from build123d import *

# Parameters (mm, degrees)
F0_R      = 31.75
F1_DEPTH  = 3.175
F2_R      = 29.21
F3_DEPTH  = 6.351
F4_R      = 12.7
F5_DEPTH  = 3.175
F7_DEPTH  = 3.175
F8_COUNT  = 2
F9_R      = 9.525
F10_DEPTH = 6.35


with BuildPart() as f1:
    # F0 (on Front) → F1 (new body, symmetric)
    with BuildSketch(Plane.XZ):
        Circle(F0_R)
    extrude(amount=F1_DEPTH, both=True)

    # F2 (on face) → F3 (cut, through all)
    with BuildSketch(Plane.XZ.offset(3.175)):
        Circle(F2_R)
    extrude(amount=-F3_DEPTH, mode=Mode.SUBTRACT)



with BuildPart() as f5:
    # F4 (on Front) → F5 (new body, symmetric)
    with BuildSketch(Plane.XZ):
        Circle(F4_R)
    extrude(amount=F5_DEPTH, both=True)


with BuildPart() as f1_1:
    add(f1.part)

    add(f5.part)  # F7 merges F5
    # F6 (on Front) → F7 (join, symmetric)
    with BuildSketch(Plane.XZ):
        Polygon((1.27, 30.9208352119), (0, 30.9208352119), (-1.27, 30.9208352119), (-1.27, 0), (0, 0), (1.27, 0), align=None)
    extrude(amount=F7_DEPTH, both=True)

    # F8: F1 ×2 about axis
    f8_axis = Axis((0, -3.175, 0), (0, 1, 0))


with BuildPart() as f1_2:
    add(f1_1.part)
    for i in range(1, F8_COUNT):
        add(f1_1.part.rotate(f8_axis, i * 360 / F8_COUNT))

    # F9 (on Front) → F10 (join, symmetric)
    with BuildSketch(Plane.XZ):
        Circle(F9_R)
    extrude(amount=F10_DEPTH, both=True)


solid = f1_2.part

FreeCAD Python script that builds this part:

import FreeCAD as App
import Part
import Sketcher
from FreeCAD import Vector
Q = App.Units.Quantity

doc = App.newDocument("Part")
params = doc.addObject("Spreadsheet::Sheet", "Params")
for row, (alias, value) in enumerate([
    ("sketch1_diameter", "2.5 in"),
    ("pad1_length", "0.25 in"),
    ("sketch2_diameter", "2.3 in"),
    ("sketch3_diameter", "1 in"),
    ("pad2_length", "0.25 in"),
    ("sketch4_width", "0.1 in"),
    ("pad3_length", "0.25 in"),
    ("sketch5_diameter", "0.75 in"),
    ("pad4_length", "0.5 in"),
], start=1):
    params.set(f"A{row}", alias)
    params.set(f"B{row}", "=" + value)
    params.setAlias(f"B{row}", alias)

body = doc.addObject("PartDesign::Body", "Body")

# Sketch on XZ plane
sketch1 = body.newObject("Sketcher::SketchObject", "Sketch")
sketch1.AttachmentSupport = (doc.getObject("XZ_Plane"), [""])
sketch1.MapMode = "FlatFace"
sketch1.addGeometry(Part.Circle(Vector(0, 0, 0), Vector(0, 0, 1), 32), False)
sketch1.addConstraint([
    Sketcher.Constraint("Coincident", 0, 3, -1, 1),
    Sketcher.Constraint("Diameter", 0, Q("2.5 in")),
])
sketch1.setExpression("Constraints[1]", "Params.sketch1_diameter")
pad1 = body.newObject("PartDesign::Pad", "Pad")
pad1.Profile = sketch1
pad1.setExpression("Length", "Params.pad1_length")
pad1.Midplane = True

# Sketch on XZ plane
sketch2 = body.newObject("Sketcher::SketchObject", "Sketch001")
sketch2.AttachmentSupport = (doc.getObject("XZ_Plane"), [""])
sketch2.MapMode = "FlatFace"
sketch2.AttachmentOffset = App.Placement(Vector(0, 0, 0.125 * 25.4), App.Rotation())
sketch2.addGeometry(Part.Circle(Vector(0, 0, 0), Vector(0, 0, 1), 29), False)
sketch2.addConstraint([
    Sketcher.Constraint("Coincident", 0, 3, -1, 1),
    Sketcher.Constraint("Diameter", 0, Q("2.3 in")),
])
sketch2.setExpression("Constraints[1]", "Params.sketch2_diameter")
pocket1 = body.newObject("PartDesign::Pocket", "Pocket")
pocket1.Profile = sketch2
pocket1.Type = "ThroughAll"
body2 = doc.addObject("PartDesign::Body", "Body001")

# Sketch on XZ plane
sketch3 = body2.newObject("Sketcher::SketchObject", "Sketch002")
sketch3.AttachmentSupport = (doc.getObject("XZ_Plane001"), [""])
sketch3.MapMode = "FlatFace"
sketch3.addGeometry(Part.Circle(Vector(0, 0, 0), Vector(0, 0, 1), 13), False)
sketch3.addConstraint([
    Sketcher.Constraint("Coincident", 0, 3, -1, 1),
    Sketcher.Constraint("Diameter", 0, Q("1 in")),
])
sketch3.setExpression("Constraints[1]", "Params.sketch3_diameter")
pad2 = body2.newObject("PartDesign::Pad", "Pad001")
pad2.Profile = sketch3
pad2.setExpression("Length", "Params.pad2_length")
pad2.Midplane = True
body.AllowCompound = True
doc.recompute()

boolean = body.newObject("PartDesign::Boolean", "Boolean")
boolean.Type = "Fuse"
boolean.addObjects([body2])

# Sketch on XZ plane
sketch4 = body.newObject("Sketcher::SketchObject", "Sketch003")
sketch4.AttachmentSupport = (doc.getObject("XZ_Plane"), [""])
sketch4.MapMode = "FlatFace"
sketch4.addGeometry([
    Part.LineSegment(Vector(1.3, 30.9, 0), Vector(-1.3, 30.9, 0)),
    Part.LineSegment(Vector(-1.3, 30.9, 0), Vector(-1.3, 0, 0)),
    Part.LineSegment(Vector(-1.3, 0, 0), Vector(1.3, 0, 0)),
    Part.LineSegment(Vector(1.3, 0, 0), Vector(1.3, 30.9, 0)),
], False)
sketch4.addConstraint([
    Sketcher.Constraint("Coincident", 0, 2, 1, 1),
    Sketcher.Constraint("Coincident", 1, 2, 2, 1),
    Sketcher.Constraint("Coincident", 2, 2, 3, 1),
    Sketcher.Constraint("Coincident", 3, 2, 0, 1),
    Sketcher.Constraint("Horizontal", 0),
    Sketcher.Constraint("Vertical", 1),
    Sketcher.Constraint("Horizontal", 2),
    Sketcher.Constraint("Vertical", 3),
    Sketcher.Constraint("Symmetric", 1, 2, 2, 2, -1, 1),
    Sketcher.Constraint("DistanceX", 0, 2, 0, 1, Q("0.1 in")),
    Sketcher.Constraint("DistanceY", 1, 2, 1, 1, Q("30.920835 mm")),
])
sketch4.setExpression("Constraints[9]", "Params.sketch4_width")
pad3 = body.newObject("PartDesign::Pad", "Pad002")
pad3.Profile = sketch4
pad3.setExpression("Length", "Params.pad3_length")
pad3.Midplane = True
body3 = doc.addObject("PartDesign::Body", "Body002")
doc.recompute()

body3.BaseFeature = body
doc.recompute()

body.Placement = App.Placement(Vector(0, 0, 0), App.Rotation(Vector(0, 1, 0), 180))
boolean2 = body3.newObject("PartDesign::Boolean", "Boolean001")
boolean2.Type = "Fuse"
boolean2.addObjects([body])

# Sketch on XZ plane
sketch5 = body3.newObject("Sketcher::SketchObject", "Sketch004")
sketch5.AttachmentSupport = (doc.getObject("XZ_Plane002"), [""])
sketch5.MapMode = "FlatFace"
sketch5.addGeometry(Part.Circle(Vector(0, 0, 0), Vector(0, 0, 1), 10), False)
sketch5.addConstraint([
    Sketcher.Constraint("Coincident", 0, 3, -1, 1),
    Sketcher.Constraint("Diameter", 0, Q("0.75 in")),
])
sketch5.setExpression("Constraints[1]", "Params.sketch5_diameter")
pad4 = body3.newObject("PartDesign::Pad", "Pad003")
pad4.Profile = sketch5
pad4.setExpression("Length", "Params.pad4_length")
pad4.Midplane = True

doc.recompute()
